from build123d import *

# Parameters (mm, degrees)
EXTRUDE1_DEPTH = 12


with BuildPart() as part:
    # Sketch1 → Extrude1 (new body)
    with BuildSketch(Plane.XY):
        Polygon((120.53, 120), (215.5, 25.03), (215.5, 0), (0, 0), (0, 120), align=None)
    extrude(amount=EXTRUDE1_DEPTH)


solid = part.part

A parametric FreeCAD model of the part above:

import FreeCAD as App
import Part
import Sketcher
from FreeCAD import Vector
Q = App.Units.Quantity

doc = App.newDocument("Part")
body = doc.addObject("PartDesign::Body", "Body")

# Sketch on XY plane
sketch1 = body.newObject("Sketcher::SketchObject", "Sketch")
sketch1.AttachmentSupport = (doc.getObject("XY_Plane"), [""])
sketch1.MapMode = "FlatFace"
sketch1.addGeometry(Part.LineSegment(Vector(216, 25, 0), Vector(121, 120, 0)), False)
sketch1.addGeometry(Part.LineSegment(Vector(121, 120, 0), Vector(0, 120, 0)), False)
sketch1.addGeometry(Part.LineSegment(Vector(0, 120, 0), Vector(0, 0, 0)), False)
sketch1.addGeometry(Part.LineSegment(Vector(0, 0, 0), Vector(216, 0, 0)), False)
sketch1.addGeometry(Part.LineSegment(Vector(216, 0, 0), Vector(216, 25, 0)), False)
sketch1.addConstraint(Sketcher.Constraint("Coincident", 0, 2, 1, 1))
sketch1.addConstraint(Sketcher.Constraint("Coincident", 1, 2, 2, 1))
sketch1.addConstraint(Sketcher.Constraint("Coincident", 2, 2, 3, 1))
sketch1.addConstraint(Sketcher.Constraint("Coincident", 3, 2, 4, 1))
sketch1.addConstraint(Sketcher.Constraint("Coincident", 4, 2, 0, 1))
sketch1.addConstraint(Sketcher.Constraint("Horizontal", 1))
sketch1.addConstraint(Sketcher.Constraint("Vertical", 2))
sketch1.addConstraint(Sketcher.Constraint("Horizontal", 3))
sketch1.addConstraint(Sketcher.Constraint("Vertical", 4))
sketch1.addConstraint(Sketcher.Constraint("Coincident", 2, 2, -1, 1))
sketch1.addConstraint(Sketcher.Constraint("DistanceY", 2, 2, 2, 1, Q("120 mm")))
sketch1.addConstraint(Sketcher.Constraint("Angle", 0, Q("135 deg")))
sketch1.addConstraint(Sketcher.Constraint("DistanceX", 3, 1, 3, 2, Q("215.5 mm")))
sketch1.addConstraint(Sketcher.Constraint("DistanceX", 1, 2, 1, 1, Q("120.53 mm")))
pad1 = body.newObject("PartDesign::Pad", "Pad")
pad1.Profile = sketch1
pad1.Length = 12

doc.recompute()
